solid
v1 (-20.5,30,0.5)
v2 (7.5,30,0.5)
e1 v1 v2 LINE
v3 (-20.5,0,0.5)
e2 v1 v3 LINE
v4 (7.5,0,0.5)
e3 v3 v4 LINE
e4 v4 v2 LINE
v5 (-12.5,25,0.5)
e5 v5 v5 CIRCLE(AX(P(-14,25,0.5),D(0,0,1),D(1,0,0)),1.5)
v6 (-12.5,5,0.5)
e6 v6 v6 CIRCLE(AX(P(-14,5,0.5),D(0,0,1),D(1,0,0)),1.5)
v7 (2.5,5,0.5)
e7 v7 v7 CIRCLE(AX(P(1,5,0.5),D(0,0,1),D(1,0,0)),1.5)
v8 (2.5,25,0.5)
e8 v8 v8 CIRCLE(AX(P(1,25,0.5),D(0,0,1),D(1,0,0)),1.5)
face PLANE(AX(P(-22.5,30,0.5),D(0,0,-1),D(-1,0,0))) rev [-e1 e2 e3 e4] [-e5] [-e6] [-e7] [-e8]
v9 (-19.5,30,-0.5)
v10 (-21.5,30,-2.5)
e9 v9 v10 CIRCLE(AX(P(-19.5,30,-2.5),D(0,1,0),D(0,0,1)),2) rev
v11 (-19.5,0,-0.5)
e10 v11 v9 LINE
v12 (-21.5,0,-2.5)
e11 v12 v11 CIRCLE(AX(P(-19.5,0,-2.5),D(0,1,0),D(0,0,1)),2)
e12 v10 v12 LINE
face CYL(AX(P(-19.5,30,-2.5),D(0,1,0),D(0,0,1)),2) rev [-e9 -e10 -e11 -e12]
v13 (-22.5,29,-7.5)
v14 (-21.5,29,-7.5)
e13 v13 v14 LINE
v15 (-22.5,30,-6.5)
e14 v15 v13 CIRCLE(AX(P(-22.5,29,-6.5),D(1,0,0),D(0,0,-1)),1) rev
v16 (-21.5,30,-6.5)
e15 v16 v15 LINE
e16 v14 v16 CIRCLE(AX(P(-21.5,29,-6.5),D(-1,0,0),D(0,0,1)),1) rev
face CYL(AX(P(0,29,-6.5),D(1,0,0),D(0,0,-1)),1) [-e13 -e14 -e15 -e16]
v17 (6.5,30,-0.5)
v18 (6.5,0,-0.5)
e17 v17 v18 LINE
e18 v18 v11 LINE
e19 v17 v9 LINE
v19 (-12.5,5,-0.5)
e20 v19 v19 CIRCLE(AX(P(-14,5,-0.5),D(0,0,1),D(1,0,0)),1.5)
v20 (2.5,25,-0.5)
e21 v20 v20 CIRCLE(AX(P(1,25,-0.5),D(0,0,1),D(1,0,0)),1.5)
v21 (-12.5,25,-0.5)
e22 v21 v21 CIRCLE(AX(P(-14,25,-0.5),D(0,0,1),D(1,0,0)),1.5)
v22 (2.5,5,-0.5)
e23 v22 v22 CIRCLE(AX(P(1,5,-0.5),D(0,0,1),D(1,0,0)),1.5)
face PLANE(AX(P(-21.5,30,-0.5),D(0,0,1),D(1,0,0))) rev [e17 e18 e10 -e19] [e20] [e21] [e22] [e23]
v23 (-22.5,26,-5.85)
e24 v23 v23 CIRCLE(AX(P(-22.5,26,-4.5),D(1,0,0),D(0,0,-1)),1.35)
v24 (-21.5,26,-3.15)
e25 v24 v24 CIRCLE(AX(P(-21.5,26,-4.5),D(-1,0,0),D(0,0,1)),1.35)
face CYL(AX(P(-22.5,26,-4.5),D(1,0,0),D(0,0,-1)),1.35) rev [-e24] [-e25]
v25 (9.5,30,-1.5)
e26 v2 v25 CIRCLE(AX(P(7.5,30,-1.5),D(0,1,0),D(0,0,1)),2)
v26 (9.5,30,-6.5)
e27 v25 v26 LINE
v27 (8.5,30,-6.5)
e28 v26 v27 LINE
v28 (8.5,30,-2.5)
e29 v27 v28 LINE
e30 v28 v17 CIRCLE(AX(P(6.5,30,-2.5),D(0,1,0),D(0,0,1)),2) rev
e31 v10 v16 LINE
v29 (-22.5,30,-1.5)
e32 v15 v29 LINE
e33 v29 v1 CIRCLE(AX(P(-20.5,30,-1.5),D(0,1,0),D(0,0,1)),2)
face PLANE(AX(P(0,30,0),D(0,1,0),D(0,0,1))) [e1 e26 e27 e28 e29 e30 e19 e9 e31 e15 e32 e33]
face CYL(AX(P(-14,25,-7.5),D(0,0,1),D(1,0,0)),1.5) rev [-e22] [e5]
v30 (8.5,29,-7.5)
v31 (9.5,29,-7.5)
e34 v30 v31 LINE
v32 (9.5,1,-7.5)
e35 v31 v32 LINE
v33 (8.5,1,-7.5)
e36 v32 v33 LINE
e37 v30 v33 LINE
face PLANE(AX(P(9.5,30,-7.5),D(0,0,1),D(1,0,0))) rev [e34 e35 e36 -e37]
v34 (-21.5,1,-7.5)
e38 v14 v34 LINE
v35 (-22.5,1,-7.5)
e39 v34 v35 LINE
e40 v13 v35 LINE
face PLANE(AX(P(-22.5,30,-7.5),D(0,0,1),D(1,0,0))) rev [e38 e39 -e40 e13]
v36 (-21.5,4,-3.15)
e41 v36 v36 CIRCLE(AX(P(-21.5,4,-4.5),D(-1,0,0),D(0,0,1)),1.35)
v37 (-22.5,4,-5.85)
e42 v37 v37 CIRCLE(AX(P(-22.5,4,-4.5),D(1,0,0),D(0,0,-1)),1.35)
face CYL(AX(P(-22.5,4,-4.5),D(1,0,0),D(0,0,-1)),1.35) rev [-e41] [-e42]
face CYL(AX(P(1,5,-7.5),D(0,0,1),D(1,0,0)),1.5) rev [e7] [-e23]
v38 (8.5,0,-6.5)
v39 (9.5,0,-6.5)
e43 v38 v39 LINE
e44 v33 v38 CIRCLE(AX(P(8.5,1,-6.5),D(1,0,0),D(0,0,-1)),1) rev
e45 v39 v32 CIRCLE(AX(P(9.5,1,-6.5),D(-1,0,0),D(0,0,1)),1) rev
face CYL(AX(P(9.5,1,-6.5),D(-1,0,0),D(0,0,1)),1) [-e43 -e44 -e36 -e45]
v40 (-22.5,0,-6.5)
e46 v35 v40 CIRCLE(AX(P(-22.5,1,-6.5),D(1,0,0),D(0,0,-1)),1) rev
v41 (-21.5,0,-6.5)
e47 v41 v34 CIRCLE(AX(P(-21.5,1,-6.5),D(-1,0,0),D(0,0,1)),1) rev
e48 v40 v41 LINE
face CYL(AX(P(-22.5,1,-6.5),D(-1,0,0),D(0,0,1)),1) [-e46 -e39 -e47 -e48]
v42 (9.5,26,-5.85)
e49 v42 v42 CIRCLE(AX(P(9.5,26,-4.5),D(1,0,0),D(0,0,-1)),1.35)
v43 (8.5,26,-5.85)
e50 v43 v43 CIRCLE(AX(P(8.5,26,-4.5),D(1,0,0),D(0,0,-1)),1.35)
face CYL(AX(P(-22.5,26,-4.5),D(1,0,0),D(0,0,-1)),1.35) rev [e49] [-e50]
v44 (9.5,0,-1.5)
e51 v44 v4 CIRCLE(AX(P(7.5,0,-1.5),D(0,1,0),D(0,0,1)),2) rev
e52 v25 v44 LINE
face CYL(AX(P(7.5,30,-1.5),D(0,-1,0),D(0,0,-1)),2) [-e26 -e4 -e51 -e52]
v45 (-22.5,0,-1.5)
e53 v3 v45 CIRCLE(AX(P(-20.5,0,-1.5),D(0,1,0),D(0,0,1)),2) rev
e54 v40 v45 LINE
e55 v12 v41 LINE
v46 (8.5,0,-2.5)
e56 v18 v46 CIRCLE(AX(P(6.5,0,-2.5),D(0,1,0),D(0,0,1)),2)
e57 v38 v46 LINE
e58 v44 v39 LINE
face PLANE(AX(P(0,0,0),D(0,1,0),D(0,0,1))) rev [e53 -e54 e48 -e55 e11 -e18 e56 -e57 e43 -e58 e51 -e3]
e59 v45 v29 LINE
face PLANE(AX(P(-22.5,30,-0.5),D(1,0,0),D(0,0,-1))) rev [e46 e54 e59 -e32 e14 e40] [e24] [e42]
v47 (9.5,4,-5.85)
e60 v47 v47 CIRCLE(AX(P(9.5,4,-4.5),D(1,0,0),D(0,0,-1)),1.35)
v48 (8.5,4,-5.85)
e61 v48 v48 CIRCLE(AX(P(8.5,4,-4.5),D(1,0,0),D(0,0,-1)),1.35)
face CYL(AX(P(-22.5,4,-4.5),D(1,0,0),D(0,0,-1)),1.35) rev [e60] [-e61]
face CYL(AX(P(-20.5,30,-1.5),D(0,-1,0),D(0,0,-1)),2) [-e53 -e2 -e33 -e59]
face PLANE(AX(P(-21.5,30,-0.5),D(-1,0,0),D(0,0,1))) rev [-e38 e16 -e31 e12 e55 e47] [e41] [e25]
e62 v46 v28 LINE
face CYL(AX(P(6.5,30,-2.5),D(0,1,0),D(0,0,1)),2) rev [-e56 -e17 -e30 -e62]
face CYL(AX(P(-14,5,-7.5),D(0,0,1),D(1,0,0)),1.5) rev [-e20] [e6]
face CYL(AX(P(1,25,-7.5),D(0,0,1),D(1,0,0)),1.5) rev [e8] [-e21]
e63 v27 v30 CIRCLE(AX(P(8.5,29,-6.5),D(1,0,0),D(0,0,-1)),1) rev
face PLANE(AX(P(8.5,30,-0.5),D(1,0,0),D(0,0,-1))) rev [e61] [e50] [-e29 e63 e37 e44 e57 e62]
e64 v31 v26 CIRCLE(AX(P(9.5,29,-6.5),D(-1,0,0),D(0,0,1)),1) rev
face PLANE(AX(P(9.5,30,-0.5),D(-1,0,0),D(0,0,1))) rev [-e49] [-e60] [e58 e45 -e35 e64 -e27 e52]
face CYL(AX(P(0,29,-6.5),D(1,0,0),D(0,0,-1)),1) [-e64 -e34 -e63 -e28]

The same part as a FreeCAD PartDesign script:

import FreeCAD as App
import Part
import Sketcher
from FreeCAD import Vector
Q = App.Units.Quantity


def edges_at(feature, points):
    """Names of the edges that pass closest to the given points."""
    edges = feature.Shape.Edges
    near = lambda p: min(range(len(edges)), key=lambda i: edges[i].distToShape(Part.Vertex(*p))[0])
    return sorted({f"Edge{near(p) + 1}" for p in points})


def add_polygon(sketch, points):
    """Adds a closed chain of lines whose ends are joined by coincident constraints."""
    first, n = sketch.GeometryCount, len(points)
    for a, b in zip(points, points[1:] + points[:1]):
        sketch.addGeometry(Part.LineSegment(App.Vector(*a, 0), App.Vector(*b, 0)), False)
    for i in range(n):
        sketch.addConstraint(Sketcher.Constraint("Coincident", first + i, 2, first + (i + 1) % n, 1))

doc = App.newDocument("Part")
body = doc.addObject("PartDesign::Body", "Body")

sketch1 = body.newObject("Sketcher::SketchObject", "Sketch")
sketch1.AttachmentSupport = (doc.getObject("XZ_Plane"), [""])
sketch1.MapMode = "FlatFace"
add_polygon(sketch1, [(8.5, -0.5), (-21.5, -0.5), (-21.5, -7.5), (-22.5, -7.5), (-22.5, 0.5), (9.5, 0.5), (9.5, -7.5), (8.5, -7.5)])
sketch1.addConstraint([
    Sketcher.Constraint("Horizontal", 0),
    Sketcher.Constraint("Vertical", 1),
    Sketcher.Constraint("Horizontal", 2),
    Sketcher.Constraint("Vertical", 3),
    Sketcher.Constraint("Horizontal", 4),
    Sketcher.Constraint("Vertical", 5),
    Sketcher.Constraint("Horizontal", 6),
    Sketcher.Constraint("Vertical", 7),
    Sketcher.Constraint("Horizontal", 2, 2, 5, 2),
    Sketcher.Constraint("Equal", 2, 6),
    Sketcher.Constraint("DistanceX", 0, 2, 0, 1, Q("30 mm")),
    Sketcher.Constraint("DistanceX", 2, 2, 2, 1, Q("1 mm")),
    Sketcher.Constraint("DistanceY", 1, 2, 1, 1, Q("7 mm")),
    Sketcher.Constraint("DistanceY", 3, 1, 3, 2, Q("8 mm")),
    Sketcher.Constraint("DistanceX", 0, 2, -1, 1, Q("21.5 mm")),
    Sketcher.Constraint("DistanceY", 0, 2, -1, 1, Q("0.5 mm")),
])
pad1 = body.newObject("PartDesign::Pad", "Pad")
pad1.Profile = sketch1
pad1.Length = 30
pad1.Reversed = True
doc.recompute()

fillet = body.newObject("PartDesign::Fillet", "Fillet")
fillet.Base = (pad1, edges_at(pad1, [
    (9.5, 15, 0.5),
    (-22.5, 15, 0.5),
    (-21.5, 15, -0.5),
    (8.5, 15, -0.5),
]))
fillet.Radius = 2

sketch2 = body.newObject("Sketcher::SketchObject", "Sketch001")
sketch2.AttachmentSupport = (doc.getObject("XY_Plane"), [""])
sketch2.MapMode = "FlatFace"
sketch2.AttachmentOffset = App.Placement(Vector(0, 0, 0.5), App.Rotation())
sketch2.addGeometry([
    Part.Circle(Vector(-14, 25, 0), Vector(0, 0, 1), 1.5),
    Part.Circle(Vector(1, 25, 0), Vector(0, 0, 1), 1.5),
    Part.Circle(Vector(-14, 5, 0), Vector(0, 0, 1), 1.5),
    Part.Circle(Vector(1, 5, 0), Vector(0, 0, 1), 1.5),
], False)
sketch2.addConstraint([
    Sketcher.Constraint("Equal", 0, 1),
    Sketcher.Constraint("Equal", 1, 2),
    Sketcher.Constraint("Equal", 2, 3),
    Sketcher.Constraint("Horizontal", 0, 3, 1, 3),
    Sketcher.Constraint("Horizontal", 2, 3, 3, 3),
    Sketcher.Constraint("Vertical", 0, 3, 2, 3),
    Sketcher.Constraint("Vertical", 1, 3, 3, 3),
    Sketcher.Constraint("Diameter", 0, Q("3 mm")),
    Sketcher.Constraint("DistanceX", 0, 3, -1, 1, Q("14 mm")),
    Sketcher.Constraint("DistanceY", -1, 1, 0, 3, Q("25 mm")),
    Sketcher.Constraint("DistanceX", -1, 1, 1, 3, Q("1 mm")),
    Sketcher.Constraint("DistanceY", -1, 1, 2, 3, Q("5 mm")),
])
pocket1 = body.newObject("PartDesign::Pocket", "Pocket")
pocket1.Profile = sketch2
pocket1.Type = "ThroughAll"

sketch3 = body.newObject("Sketcher::SketchObject", "Sketch002")
sketch3.AttachmentSupport = (doc.getObject("YZ_Plane"), [""])
sketch3.MapMode = "FlatFace"
sketch3.AttachmentOffset = App.Placement(Vector(0, 0, 9.5), App.Rotation())
sketch3.addGeometry([
    Part.Circle(Vector(26, -4.5, 0), Vector(0, 0, 1), 1.35),
    Part.Circle(Vector(4, -4.5, 0), Vector(0, 0, 1), 1.35),
], False)
sketch3.addConstraint([
    Sketcher.Constraint("Equal", 0, 1),
    Sketcher.Constraint("Horizontal", 0, 3, 1, 3),
    Sketcher.Constraint("Diameter", 0, Q("2.7 mm")),
    Sketcher.Constraint("DistanceX", -1, 1, 0, 3, Q("26 mm")),
    Sketcher.Constraint("DistanceX", -1, 1, 1, 3, Q("4 mm")),
    Sketcher.Constraint("DistanceY", 0, 3, -1, 1, Q("4.5 mm")),
])
pocket2 = body.newObject("PartDesign::Pocket", "Pocket001")
pocket2.Profile = sketch3
pocket2.Type = "ThroughAll"
doc.recompute()

fillet2 = body.newObject("PartDesign::Fillet", "Fillet001")
fillet2.Base = (pocket2, edges_at(pocket2, [
    (9, 30, -7.5),
    (-22, 0, -7.5),
    (9, 0, -7.5),
    (-22, 30, -7.5),
]))
fillet2.Radius = 1

doc.recompute()
